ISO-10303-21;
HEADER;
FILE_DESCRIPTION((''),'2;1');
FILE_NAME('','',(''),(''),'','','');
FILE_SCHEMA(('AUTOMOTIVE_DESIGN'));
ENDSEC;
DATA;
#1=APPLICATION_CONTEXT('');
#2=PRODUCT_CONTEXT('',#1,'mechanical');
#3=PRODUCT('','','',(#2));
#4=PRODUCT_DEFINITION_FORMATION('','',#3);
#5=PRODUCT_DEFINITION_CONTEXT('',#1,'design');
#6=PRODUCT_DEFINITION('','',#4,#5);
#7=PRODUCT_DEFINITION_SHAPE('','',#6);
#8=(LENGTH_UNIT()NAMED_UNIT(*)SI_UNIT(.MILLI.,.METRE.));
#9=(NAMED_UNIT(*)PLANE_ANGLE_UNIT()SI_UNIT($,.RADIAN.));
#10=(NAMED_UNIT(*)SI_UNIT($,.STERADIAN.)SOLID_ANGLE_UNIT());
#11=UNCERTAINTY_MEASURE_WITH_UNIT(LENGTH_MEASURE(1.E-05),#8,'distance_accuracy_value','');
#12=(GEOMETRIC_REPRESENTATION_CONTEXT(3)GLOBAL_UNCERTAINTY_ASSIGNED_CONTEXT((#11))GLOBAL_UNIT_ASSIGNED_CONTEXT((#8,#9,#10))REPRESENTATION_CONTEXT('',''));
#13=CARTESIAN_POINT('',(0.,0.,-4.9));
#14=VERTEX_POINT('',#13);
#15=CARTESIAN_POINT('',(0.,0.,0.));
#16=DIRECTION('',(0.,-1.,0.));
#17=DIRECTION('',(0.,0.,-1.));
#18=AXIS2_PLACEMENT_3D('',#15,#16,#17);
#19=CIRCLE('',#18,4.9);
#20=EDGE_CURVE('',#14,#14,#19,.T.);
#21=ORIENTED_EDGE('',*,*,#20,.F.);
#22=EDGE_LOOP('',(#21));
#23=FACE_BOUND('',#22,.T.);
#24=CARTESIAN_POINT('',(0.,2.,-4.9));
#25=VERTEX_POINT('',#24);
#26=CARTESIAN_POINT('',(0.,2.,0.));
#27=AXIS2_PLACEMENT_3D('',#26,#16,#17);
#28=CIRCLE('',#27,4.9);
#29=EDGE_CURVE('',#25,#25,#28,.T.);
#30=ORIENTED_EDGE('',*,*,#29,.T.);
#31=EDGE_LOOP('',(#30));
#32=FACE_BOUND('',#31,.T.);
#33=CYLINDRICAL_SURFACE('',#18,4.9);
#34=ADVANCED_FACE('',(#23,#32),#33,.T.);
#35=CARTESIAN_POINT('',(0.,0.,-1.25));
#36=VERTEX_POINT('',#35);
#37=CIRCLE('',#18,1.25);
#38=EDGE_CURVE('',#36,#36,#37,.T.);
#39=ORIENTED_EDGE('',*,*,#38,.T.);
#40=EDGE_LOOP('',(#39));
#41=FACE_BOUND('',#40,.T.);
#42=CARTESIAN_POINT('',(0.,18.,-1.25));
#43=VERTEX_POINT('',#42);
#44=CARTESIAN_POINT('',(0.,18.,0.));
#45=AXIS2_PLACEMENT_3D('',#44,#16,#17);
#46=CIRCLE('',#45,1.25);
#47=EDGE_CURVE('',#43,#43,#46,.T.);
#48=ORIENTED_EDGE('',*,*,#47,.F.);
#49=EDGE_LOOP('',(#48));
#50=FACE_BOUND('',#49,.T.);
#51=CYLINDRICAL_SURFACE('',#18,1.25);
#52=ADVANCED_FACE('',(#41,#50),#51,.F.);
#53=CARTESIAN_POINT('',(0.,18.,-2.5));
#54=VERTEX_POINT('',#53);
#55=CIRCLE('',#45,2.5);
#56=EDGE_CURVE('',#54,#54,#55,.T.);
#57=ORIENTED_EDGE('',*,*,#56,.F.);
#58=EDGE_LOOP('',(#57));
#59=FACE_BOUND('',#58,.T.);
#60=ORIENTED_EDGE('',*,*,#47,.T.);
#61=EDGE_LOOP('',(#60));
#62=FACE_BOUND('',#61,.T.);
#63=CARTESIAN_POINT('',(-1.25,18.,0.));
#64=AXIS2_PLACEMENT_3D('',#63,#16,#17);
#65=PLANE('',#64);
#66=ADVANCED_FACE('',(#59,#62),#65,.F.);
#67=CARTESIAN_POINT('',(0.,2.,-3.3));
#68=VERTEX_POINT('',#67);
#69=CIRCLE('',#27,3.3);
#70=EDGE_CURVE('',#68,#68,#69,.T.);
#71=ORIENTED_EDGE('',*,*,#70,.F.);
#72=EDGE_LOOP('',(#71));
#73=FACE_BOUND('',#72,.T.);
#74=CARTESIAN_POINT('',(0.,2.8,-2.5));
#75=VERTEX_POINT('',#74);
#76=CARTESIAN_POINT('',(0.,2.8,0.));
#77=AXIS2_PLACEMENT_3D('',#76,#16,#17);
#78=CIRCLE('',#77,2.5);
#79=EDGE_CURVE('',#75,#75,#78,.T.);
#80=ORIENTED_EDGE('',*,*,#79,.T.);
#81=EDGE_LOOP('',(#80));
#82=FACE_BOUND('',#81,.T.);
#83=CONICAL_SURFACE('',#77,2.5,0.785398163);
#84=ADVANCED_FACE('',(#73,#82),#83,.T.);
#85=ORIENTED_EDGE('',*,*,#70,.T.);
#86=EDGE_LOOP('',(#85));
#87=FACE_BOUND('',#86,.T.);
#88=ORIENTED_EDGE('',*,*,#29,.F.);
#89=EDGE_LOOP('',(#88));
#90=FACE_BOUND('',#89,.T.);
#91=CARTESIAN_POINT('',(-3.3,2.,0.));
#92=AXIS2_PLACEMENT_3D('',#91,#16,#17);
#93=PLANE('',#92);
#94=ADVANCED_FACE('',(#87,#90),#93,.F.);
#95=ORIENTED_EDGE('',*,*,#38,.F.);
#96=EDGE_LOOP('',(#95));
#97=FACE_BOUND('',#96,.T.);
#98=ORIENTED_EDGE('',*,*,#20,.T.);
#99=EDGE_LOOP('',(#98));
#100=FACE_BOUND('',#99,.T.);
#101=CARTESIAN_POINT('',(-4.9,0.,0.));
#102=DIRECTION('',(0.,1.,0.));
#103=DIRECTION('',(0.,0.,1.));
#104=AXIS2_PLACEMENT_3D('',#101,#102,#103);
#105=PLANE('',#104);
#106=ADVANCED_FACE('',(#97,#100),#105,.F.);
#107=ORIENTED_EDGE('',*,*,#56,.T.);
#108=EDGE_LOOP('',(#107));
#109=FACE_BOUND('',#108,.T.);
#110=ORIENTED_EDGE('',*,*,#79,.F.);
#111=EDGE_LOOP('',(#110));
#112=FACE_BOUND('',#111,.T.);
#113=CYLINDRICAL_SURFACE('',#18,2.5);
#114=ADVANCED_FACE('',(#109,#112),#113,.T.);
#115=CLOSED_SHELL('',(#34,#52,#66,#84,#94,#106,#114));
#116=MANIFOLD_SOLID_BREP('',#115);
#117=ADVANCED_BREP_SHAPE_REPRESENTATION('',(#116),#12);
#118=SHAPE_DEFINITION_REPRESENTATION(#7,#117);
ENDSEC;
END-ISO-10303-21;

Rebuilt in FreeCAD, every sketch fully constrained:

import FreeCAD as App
import Part
import Sketcher
Q = App.Units.Quantity

doc = App.newDocument("Part")
body = doc.addObject("PartDesign::Body", "Body")

# Sketch on XY plane
sketch1 = body.newObject("Sketcher::SketchObject", "Sketch")
sketch1.AttachmentSupport = (doc.getObject("XY_Plane"), [""])
sketch1.MapMode = "FlatFace"
sketch1.addGeometry([
    Part.LineSegment(App.Vector(-1.25, 0, 0), App.Vector(-1.25, 18, 0)),  # 0
    Part.LineSegment(App.Vector(-1.25, 18, 0), App.Vector(-2.5, 18, 0)),  # 1
    Part.LineSegment(App.Vector(-2.5, 18, 0), App.Vector(-2.5, 2.8, 0)),  # 2
    Part.LineSegment(App.Vector(-2.5, 2.8, 0), App.Vector(-3.3, 2, 0)),  # 3
    Part.LineSegment(App.Vector(-3.3, 2, 0), App.Vector(-4.9, 2, 0)),  # 4
    Part.LineSegment(App.Vector(-4.9, 2, 0), App.Vector(-4.9, 0, 0)),  # 5
    Part.LineSegment(App.Vector(-4.9, 0, 0), App.Vector(-1.25, 0, 0)),  # 6
], False)
sketch1.addConstraint([
    Sketcher.Constraint("Coincident", 0, 2, 1, 1),
    Sketcher.Constraint("Coincident", 1, 2, 2, 1),
    Sketcher.Constraint("Coincident", 2, 2, 3, 1),
    Sketcher.Constraint("Coincident", 3, 2, 4, 1),
    Sketcher.Constraint("Coincident", 4, 2, 5, 1),
    Sketcher.Constraint("Coincident", 5, 2, 6, 1),
    Sketcher.Constraint("Coincident", 6, 2, 0, 1),
    Sketcher.Constraint("Vertical", 0),
    Sketcher.Constraint("Horizontal", 1),
    Sketcher.Constraint("Vertical", 2),
    Sketcher.Constraint("Horizontal", 4),
    Sketcher.Constraint("Vertical", 5),
    Sketcher.Constraint("Horizontal", 6),
    Sketcher.Constraint("PointOnObject", 5, 2, -1),
    Sketcher.Constraint("DistanceY", 0, 1, 0, 2, 18.0),
    Sketcher.Constraint("DistanceY", 5, 2, 5, 1, 2.0),
    Sketcher.Constraint("Angle", 3, Q("-135 deg")),
    Sketcher.Constraint("DistanceX", 4, 2, 4, 1, 1.6),
    Sketcher.Constraint("DistanceY", 2, 2, 2, 1, 15.2),
    Sketcher.Constraint("DistanceX", 1, 2, 1, 1, 1.25),
    Sketcher.Constraint("DistanceX", 1, 2, -1, 1, 2.5),
])
revolution = body.newObject("PartDesign::Revolution", "Revolution")
revolution.Profile = sketch1
revolution.ReferenceAxis = (sketch1, ["V_Axis"])
revolution.Angle = 360

doc.recompute()
